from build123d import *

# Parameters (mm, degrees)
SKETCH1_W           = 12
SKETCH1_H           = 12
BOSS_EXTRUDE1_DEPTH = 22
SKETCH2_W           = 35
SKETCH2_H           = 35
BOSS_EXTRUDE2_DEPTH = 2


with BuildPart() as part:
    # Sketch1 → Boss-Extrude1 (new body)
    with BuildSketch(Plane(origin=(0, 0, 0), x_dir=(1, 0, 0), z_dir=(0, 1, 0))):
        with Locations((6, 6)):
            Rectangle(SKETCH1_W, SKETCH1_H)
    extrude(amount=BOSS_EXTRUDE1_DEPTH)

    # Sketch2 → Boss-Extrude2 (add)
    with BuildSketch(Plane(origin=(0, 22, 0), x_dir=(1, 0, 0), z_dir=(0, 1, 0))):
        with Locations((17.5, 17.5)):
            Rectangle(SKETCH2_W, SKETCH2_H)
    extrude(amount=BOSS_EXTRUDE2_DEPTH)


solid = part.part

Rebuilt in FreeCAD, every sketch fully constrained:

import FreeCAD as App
import Part
import Sketcher


def add_polygon(sketch, points):
    """Adds a closed chain of lines whose ends are joined by coincident constraints."""
    first, n = sketch.GeometryCount, len(points)
    for a, b in zip(points, points[1:] + points[:1]):
        sketch.addGeometry(Part.LineSegment(App.Vector(*a, 0), App.Vector(*b, 0)), False)
    for i in range(n):
        sketch.addConstraint(Sketcher.Constraint("Coincident", first + i, 2, first + (i + 1) % n, 1))

doc = App.newDocument("Part")
body = doc.addObject("PartDesign::Body", "Body")

# Sketch on XZ plane
sketch1 = doc.addObject("Sketcher::SketchObject", "Sketch")
body.addObject(sketch1)
sketch1.AttachmentSupport = (doc.XZ_Plane, [""])
sketch1.MapMode = "FlatFace"
add_polygon(sketch1, [(0, -12), (0, 0), (12, 0), (12, -12)])  # lines 0-3
sketch1.addConstraint([
    Sketcher.Constraint("Vertical", 0),
    Sketcher.Constraint("Horizontal", 1),
    Sketcher.Constraint("Vertical", 2),
    Sketcher.Constraint("Horizontal", 3),
    Sketcher.Constraint("Coincident", 0, 2, -1, 1),
    Sketcher.Constraint("Equal", 3, 0),
    Sketcher.Constraint("DistanceX", 1, 1, 1, 2, 12.0),
])
pad1 = doc.addObject("PartDesign::Pad", "Pad")
body.addObject(pad1)
pad1.Profile = sketch1
pad1.Length = 22
pad1.Reversed = True

# Sketch on XZ plane
sketch2 = doc.addObject("Sketcher::SketchObject", "Sketch001")
body.addObject(sketch2)
sketch2.AttachmentSupport = (doc.XZ_Plane, [""])
sketch2.MapMode = "FlatFace"
sketch2.AttachmentOffset = App.Placement(App.Vector(0, 0, -22), App.Rotation())
add_polygon(sketch2, [(0, -35), (0, 0), (35, 0), (35, -35)])  # lines 0-3
sketch2.addConstraint([
    Sketcher.Constraint("Vertical", 0),
    Sketcher.Constraint("Horizontal", 1),
    Sketcher.Constraint("Vertical", 2),
    Sketcher.Constraint("Horizontal", 3),
    Sketcher.Constraint("Coincident", 0, 2, -1, 1),
    Sketcher.Constraint("Equal", 3, 0),
    Sketcher.Constraint("DistanceX", 1, 1, 1, 2, 35.0),
])
pad2 = doc.addObject("PartDesign::Pad", "Pad001")
body.addObject(pad2)
pad2.Profile = sketch2
pad2.Length = 2
pad2.Reversed = True

doc.recompute()
